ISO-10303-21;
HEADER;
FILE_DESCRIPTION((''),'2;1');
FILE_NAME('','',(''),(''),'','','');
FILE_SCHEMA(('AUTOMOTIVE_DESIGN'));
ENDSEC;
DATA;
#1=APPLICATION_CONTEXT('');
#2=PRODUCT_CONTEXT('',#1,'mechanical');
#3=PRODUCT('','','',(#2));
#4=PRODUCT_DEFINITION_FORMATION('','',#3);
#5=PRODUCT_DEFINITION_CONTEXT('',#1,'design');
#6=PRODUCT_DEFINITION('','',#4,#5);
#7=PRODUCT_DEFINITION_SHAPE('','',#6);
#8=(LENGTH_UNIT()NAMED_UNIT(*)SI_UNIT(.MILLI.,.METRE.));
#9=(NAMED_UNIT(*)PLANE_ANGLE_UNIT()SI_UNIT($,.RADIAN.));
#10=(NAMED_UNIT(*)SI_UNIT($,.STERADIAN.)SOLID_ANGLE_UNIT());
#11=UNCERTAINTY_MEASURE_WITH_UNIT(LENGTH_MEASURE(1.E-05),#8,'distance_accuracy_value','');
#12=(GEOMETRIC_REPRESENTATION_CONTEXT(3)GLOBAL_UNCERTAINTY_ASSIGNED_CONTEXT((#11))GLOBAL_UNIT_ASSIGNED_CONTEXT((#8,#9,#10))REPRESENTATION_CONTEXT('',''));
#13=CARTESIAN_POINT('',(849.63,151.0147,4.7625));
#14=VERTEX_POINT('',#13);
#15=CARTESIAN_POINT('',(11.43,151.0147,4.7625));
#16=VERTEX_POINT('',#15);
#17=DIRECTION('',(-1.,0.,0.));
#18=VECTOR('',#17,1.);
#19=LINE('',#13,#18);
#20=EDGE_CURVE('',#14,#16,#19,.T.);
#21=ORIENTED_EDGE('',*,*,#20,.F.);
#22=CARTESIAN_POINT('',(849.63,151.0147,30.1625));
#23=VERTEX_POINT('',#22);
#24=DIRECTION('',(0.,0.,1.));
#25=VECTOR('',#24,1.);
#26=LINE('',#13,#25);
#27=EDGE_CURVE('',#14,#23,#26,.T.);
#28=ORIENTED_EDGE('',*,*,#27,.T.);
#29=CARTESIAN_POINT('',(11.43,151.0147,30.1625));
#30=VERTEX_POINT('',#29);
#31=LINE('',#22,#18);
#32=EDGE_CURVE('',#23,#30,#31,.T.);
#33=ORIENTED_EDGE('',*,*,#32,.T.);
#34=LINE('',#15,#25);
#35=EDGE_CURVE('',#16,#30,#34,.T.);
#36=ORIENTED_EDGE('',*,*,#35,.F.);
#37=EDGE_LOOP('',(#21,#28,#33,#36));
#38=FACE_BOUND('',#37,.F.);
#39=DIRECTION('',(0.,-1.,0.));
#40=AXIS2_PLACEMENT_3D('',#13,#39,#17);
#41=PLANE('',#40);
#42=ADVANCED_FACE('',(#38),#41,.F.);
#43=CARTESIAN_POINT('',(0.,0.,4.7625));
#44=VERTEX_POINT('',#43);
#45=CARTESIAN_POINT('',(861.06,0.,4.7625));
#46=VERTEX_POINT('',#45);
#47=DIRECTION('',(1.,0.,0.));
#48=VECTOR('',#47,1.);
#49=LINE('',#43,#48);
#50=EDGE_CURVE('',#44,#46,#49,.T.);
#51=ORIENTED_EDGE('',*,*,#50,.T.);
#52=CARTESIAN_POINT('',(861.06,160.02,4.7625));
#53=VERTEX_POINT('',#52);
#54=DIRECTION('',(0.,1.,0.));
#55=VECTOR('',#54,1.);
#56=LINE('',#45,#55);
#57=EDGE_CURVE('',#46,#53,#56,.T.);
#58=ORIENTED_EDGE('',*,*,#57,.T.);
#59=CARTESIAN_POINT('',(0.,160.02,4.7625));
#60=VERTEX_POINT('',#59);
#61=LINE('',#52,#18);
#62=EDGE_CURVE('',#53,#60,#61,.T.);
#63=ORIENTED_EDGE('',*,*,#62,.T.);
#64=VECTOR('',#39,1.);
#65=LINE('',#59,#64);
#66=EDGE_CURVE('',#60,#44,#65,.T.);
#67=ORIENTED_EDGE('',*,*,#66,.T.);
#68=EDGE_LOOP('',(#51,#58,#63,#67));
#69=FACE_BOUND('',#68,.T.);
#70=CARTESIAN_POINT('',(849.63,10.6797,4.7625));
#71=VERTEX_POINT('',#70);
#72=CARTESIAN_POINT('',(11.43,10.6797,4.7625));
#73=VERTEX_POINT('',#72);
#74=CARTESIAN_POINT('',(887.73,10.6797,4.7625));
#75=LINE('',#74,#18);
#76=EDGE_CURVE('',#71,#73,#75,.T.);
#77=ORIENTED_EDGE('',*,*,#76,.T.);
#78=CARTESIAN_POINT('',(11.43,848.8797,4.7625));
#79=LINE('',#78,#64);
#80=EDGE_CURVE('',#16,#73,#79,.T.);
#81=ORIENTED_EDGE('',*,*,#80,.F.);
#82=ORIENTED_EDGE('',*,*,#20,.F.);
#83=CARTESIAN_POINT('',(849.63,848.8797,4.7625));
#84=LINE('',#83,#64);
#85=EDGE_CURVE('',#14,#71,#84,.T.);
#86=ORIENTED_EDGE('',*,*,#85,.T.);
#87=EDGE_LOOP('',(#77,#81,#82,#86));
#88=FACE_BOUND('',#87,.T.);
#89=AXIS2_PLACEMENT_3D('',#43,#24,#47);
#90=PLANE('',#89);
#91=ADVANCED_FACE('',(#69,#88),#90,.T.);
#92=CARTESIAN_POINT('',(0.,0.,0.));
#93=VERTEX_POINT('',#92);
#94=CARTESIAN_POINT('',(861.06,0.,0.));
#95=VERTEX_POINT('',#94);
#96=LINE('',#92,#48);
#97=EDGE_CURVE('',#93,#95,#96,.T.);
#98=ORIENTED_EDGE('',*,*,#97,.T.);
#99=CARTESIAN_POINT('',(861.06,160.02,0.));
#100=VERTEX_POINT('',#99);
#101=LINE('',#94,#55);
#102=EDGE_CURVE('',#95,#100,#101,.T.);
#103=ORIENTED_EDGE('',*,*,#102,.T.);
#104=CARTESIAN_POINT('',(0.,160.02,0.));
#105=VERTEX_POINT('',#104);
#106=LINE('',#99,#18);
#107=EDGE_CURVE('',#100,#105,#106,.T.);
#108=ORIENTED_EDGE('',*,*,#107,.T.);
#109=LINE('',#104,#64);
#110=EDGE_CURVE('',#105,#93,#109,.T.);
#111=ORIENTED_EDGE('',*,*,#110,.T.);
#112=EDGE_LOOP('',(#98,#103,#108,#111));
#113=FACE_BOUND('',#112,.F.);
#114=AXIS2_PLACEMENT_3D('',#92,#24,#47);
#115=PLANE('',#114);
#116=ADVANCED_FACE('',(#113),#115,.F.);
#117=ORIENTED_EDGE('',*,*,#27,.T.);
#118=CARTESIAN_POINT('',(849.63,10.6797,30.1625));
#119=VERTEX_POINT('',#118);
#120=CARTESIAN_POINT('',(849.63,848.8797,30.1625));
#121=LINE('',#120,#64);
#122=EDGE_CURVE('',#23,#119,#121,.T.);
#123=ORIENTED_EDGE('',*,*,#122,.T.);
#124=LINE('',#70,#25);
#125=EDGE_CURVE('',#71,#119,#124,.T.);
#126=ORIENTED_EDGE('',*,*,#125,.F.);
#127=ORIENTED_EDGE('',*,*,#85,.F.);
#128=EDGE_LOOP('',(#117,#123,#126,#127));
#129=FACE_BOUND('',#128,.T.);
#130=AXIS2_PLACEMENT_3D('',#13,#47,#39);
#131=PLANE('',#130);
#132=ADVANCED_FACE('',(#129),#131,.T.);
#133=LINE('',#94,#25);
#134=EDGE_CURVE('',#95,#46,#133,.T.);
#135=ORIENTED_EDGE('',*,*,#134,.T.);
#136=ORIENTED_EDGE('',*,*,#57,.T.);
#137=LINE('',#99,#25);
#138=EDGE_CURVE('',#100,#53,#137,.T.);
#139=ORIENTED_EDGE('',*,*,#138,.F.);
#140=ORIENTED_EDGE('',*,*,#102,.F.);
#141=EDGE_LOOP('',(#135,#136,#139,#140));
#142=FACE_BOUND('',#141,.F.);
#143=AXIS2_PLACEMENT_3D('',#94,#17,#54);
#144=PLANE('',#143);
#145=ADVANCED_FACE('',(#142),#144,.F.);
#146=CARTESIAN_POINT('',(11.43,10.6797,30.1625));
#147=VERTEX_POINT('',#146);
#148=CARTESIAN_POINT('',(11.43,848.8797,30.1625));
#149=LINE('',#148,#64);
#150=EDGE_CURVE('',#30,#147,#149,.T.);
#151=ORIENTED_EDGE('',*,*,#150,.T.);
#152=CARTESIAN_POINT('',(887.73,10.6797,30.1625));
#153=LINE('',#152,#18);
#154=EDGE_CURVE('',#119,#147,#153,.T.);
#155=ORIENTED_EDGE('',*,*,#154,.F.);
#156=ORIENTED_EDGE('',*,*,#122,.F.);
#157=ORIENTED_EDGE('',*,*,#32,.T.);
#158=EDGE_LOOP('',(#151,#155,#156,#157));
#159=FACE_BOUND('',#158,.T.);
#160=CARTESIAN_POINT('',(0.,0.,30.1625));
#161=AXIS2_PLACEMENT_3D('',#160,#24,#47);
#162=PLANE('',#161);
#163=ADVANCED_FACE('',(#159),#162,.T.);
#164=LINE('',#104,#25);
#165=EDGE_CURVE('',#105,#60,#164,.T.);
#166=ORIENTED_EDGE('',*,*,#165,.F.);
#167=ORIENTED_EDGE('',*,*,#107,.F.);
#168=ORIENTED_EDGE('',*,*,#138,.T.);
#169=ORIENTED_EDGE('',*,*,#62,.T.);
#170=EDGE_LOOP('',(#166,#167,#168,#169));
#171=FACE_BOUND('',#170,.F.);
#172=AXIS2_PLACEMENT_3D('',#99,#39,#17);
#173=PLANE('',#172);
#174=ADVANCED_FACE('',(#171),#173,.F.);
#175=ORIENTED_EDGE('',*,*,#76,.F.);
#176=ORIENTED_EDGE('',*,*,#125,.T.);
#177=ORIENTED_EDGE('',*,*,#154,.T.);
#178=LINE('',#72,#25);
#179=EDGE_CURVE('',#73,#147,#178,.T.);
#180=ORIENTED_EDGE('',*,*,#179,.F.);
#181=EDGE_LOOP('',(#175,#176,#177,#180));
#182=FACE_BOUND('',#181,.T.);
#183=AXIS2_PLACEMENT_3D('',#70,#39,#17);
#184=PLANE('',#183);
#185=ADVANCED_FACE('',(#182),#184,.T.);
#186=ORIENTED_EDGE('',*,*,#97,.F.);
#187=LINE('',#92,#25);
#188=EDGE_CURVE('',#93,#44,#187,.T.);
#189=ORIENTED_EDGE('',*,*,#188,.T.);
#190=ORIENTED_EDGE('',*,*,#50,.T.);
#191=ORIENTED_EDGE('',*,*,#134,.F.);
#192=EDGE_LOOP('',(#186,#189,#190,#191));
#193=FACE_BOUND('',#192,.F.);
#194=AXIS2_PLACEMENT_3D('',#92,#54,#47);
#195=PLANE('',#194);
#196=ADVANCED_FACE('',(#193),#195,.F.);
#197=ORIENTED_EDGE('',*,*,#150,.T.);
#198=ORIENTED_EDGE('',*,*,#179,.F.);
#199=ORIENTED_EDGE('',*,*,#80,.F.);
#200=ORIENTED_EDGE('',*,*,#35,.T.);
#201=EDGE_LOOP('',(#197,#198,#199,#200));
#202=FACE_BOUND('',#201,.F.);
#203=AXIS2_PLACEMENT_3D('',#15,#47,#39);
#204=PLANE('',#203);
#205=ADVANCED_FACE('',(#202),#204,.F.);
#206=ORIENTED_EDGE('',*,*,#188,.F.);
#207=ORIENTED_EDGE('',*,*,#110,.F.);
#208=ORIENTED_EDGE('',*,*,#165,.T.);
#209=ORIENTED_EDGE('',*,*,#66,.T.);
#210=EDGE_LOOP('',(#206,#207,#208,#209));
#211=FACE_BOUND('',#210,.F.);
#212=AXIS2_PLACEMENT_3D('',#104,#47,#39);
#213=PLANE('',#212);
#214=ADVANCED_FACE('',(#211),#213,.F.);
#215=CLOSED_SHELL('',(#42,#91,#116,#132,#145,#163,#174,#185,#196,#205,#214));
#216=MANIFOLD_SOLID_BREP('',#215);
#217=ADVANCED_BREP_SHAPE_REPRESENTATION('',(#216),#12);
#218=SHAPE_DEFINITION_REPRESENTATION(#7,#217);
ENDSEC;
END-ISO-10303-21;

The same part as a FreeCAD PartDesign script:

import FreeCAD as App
import Part
import Sketcher
Q = App.Units.Quantity


def add_polygon(sketch, points):
    """Adds a closed chain of lines whose ends are joined by coincident constraints."""
    first, n = sketch.GeometryCount, len(points)
    for a, b in zip(points, points[1:] + points[:1]):
        sketch.addGeometry(Part.LineSegment(App.Vector(*a, 0), App.Vector(*b, 0)), False)
    for i in range(n):
        sketch.addConstraint(Sketcher.Constraint("Coincident", first + i, 2, first + (i + 1) % n, 1))

doc = App.newDocument("Part")
body = doc.addObject("PartDesign::Body", "Body")

# Sketch on XY plane
sketch1 = doc.addObject("Sketcher::SketchObject", "Sketch")
body.addObject(sketch1)
sketch1.AttachmentSupport = (doc.XY_Plane, [""])
sketch1.MapMode = "FlatFace"
add_polygon(sketch1, [(0, 160), (0, 0), (861, 0), (861, 160)])  # lines 0-3
sketch1.addConstraint(Sketcher.Constraint("Vertical", 0))
sketch1.addConstraint(Sketcher.Constraint("Horizontal", 1))
sketch1.addConstraint(Sketcher.Constraint("Vertical", 2))
sketch1.addConstraint(Sketcher.Constraint("Horizontal", 3))
sketch1.addConstraint(Sketcher.Constraint("Coincident", 0, 2, -1, 1))
sketch1.addConstraint(Sketcher.Constraint("DistanceX", 1, 1, 1, 2, Q("33.9 in")))
sketch1.addConstraint(Sketcher.Constraint("DistanceY", 0, 2, 0, 1, Q("6.3 in")))
pad1 = doc.addObject("PartDesign::Pad", "Pad")
body.addObject(pad1)
pad1.Profile = sketch1
pad1.Length = Q("0.1875 in")

# Sketch on XY plane
sketch2 = doc.addObject("Sketcher::SketchObject", "Sketch001")
body.addObject(sketch2)
sketch2.AttachmentSupport = (doc.XY_Plane, [""])
sketch2.MapMode = "FlatFace"
sketch2.AttachmentOffset = App.Placement(App.Vector(0, 0, 0.1875 * 25.4), App.Rotation())
add_polygon(sketch2, [(850, 11), (850, 151), (11, 151), (11, 11)])  # lines 0-3
sketch2.addConstraint(Sketcher.Constraint("Vertical", 0))
sketch2.addConstraint(Sketcher.Constraint("Horizontal", 1))
sketch2.addConstraint(Sketcher.Constraint("Vertical", 2))
sketch2.addConstraint(Sketcher.Constraint("Horizontal", 3))
sketch2.addConstraint(Sketcher.Constraint("DistanceX", 1, 2, 1, 1, Q("33 in")))
sketch2.addConstraint(Sketcher.Constraint("DistanceY", 0, 1, 0, 2, Q("5.525 in")))
sketch2.addConstraint(Sketcher.Constraint("DistanceX", -1, 1, 0, 2, Q("33.45 in")))
sketch2.addConstraint(Sketcher.Constraint("DistanceY", -1, 1, 0, 2, Q("151.0147 mm")))
pad2 = doc.addObject("PartDesign::Pad", "Pad001")
body.addObject(pad2)
pad2.Profile = sketch2
pad2.Length = Q("1 in")

doc.recompute()
